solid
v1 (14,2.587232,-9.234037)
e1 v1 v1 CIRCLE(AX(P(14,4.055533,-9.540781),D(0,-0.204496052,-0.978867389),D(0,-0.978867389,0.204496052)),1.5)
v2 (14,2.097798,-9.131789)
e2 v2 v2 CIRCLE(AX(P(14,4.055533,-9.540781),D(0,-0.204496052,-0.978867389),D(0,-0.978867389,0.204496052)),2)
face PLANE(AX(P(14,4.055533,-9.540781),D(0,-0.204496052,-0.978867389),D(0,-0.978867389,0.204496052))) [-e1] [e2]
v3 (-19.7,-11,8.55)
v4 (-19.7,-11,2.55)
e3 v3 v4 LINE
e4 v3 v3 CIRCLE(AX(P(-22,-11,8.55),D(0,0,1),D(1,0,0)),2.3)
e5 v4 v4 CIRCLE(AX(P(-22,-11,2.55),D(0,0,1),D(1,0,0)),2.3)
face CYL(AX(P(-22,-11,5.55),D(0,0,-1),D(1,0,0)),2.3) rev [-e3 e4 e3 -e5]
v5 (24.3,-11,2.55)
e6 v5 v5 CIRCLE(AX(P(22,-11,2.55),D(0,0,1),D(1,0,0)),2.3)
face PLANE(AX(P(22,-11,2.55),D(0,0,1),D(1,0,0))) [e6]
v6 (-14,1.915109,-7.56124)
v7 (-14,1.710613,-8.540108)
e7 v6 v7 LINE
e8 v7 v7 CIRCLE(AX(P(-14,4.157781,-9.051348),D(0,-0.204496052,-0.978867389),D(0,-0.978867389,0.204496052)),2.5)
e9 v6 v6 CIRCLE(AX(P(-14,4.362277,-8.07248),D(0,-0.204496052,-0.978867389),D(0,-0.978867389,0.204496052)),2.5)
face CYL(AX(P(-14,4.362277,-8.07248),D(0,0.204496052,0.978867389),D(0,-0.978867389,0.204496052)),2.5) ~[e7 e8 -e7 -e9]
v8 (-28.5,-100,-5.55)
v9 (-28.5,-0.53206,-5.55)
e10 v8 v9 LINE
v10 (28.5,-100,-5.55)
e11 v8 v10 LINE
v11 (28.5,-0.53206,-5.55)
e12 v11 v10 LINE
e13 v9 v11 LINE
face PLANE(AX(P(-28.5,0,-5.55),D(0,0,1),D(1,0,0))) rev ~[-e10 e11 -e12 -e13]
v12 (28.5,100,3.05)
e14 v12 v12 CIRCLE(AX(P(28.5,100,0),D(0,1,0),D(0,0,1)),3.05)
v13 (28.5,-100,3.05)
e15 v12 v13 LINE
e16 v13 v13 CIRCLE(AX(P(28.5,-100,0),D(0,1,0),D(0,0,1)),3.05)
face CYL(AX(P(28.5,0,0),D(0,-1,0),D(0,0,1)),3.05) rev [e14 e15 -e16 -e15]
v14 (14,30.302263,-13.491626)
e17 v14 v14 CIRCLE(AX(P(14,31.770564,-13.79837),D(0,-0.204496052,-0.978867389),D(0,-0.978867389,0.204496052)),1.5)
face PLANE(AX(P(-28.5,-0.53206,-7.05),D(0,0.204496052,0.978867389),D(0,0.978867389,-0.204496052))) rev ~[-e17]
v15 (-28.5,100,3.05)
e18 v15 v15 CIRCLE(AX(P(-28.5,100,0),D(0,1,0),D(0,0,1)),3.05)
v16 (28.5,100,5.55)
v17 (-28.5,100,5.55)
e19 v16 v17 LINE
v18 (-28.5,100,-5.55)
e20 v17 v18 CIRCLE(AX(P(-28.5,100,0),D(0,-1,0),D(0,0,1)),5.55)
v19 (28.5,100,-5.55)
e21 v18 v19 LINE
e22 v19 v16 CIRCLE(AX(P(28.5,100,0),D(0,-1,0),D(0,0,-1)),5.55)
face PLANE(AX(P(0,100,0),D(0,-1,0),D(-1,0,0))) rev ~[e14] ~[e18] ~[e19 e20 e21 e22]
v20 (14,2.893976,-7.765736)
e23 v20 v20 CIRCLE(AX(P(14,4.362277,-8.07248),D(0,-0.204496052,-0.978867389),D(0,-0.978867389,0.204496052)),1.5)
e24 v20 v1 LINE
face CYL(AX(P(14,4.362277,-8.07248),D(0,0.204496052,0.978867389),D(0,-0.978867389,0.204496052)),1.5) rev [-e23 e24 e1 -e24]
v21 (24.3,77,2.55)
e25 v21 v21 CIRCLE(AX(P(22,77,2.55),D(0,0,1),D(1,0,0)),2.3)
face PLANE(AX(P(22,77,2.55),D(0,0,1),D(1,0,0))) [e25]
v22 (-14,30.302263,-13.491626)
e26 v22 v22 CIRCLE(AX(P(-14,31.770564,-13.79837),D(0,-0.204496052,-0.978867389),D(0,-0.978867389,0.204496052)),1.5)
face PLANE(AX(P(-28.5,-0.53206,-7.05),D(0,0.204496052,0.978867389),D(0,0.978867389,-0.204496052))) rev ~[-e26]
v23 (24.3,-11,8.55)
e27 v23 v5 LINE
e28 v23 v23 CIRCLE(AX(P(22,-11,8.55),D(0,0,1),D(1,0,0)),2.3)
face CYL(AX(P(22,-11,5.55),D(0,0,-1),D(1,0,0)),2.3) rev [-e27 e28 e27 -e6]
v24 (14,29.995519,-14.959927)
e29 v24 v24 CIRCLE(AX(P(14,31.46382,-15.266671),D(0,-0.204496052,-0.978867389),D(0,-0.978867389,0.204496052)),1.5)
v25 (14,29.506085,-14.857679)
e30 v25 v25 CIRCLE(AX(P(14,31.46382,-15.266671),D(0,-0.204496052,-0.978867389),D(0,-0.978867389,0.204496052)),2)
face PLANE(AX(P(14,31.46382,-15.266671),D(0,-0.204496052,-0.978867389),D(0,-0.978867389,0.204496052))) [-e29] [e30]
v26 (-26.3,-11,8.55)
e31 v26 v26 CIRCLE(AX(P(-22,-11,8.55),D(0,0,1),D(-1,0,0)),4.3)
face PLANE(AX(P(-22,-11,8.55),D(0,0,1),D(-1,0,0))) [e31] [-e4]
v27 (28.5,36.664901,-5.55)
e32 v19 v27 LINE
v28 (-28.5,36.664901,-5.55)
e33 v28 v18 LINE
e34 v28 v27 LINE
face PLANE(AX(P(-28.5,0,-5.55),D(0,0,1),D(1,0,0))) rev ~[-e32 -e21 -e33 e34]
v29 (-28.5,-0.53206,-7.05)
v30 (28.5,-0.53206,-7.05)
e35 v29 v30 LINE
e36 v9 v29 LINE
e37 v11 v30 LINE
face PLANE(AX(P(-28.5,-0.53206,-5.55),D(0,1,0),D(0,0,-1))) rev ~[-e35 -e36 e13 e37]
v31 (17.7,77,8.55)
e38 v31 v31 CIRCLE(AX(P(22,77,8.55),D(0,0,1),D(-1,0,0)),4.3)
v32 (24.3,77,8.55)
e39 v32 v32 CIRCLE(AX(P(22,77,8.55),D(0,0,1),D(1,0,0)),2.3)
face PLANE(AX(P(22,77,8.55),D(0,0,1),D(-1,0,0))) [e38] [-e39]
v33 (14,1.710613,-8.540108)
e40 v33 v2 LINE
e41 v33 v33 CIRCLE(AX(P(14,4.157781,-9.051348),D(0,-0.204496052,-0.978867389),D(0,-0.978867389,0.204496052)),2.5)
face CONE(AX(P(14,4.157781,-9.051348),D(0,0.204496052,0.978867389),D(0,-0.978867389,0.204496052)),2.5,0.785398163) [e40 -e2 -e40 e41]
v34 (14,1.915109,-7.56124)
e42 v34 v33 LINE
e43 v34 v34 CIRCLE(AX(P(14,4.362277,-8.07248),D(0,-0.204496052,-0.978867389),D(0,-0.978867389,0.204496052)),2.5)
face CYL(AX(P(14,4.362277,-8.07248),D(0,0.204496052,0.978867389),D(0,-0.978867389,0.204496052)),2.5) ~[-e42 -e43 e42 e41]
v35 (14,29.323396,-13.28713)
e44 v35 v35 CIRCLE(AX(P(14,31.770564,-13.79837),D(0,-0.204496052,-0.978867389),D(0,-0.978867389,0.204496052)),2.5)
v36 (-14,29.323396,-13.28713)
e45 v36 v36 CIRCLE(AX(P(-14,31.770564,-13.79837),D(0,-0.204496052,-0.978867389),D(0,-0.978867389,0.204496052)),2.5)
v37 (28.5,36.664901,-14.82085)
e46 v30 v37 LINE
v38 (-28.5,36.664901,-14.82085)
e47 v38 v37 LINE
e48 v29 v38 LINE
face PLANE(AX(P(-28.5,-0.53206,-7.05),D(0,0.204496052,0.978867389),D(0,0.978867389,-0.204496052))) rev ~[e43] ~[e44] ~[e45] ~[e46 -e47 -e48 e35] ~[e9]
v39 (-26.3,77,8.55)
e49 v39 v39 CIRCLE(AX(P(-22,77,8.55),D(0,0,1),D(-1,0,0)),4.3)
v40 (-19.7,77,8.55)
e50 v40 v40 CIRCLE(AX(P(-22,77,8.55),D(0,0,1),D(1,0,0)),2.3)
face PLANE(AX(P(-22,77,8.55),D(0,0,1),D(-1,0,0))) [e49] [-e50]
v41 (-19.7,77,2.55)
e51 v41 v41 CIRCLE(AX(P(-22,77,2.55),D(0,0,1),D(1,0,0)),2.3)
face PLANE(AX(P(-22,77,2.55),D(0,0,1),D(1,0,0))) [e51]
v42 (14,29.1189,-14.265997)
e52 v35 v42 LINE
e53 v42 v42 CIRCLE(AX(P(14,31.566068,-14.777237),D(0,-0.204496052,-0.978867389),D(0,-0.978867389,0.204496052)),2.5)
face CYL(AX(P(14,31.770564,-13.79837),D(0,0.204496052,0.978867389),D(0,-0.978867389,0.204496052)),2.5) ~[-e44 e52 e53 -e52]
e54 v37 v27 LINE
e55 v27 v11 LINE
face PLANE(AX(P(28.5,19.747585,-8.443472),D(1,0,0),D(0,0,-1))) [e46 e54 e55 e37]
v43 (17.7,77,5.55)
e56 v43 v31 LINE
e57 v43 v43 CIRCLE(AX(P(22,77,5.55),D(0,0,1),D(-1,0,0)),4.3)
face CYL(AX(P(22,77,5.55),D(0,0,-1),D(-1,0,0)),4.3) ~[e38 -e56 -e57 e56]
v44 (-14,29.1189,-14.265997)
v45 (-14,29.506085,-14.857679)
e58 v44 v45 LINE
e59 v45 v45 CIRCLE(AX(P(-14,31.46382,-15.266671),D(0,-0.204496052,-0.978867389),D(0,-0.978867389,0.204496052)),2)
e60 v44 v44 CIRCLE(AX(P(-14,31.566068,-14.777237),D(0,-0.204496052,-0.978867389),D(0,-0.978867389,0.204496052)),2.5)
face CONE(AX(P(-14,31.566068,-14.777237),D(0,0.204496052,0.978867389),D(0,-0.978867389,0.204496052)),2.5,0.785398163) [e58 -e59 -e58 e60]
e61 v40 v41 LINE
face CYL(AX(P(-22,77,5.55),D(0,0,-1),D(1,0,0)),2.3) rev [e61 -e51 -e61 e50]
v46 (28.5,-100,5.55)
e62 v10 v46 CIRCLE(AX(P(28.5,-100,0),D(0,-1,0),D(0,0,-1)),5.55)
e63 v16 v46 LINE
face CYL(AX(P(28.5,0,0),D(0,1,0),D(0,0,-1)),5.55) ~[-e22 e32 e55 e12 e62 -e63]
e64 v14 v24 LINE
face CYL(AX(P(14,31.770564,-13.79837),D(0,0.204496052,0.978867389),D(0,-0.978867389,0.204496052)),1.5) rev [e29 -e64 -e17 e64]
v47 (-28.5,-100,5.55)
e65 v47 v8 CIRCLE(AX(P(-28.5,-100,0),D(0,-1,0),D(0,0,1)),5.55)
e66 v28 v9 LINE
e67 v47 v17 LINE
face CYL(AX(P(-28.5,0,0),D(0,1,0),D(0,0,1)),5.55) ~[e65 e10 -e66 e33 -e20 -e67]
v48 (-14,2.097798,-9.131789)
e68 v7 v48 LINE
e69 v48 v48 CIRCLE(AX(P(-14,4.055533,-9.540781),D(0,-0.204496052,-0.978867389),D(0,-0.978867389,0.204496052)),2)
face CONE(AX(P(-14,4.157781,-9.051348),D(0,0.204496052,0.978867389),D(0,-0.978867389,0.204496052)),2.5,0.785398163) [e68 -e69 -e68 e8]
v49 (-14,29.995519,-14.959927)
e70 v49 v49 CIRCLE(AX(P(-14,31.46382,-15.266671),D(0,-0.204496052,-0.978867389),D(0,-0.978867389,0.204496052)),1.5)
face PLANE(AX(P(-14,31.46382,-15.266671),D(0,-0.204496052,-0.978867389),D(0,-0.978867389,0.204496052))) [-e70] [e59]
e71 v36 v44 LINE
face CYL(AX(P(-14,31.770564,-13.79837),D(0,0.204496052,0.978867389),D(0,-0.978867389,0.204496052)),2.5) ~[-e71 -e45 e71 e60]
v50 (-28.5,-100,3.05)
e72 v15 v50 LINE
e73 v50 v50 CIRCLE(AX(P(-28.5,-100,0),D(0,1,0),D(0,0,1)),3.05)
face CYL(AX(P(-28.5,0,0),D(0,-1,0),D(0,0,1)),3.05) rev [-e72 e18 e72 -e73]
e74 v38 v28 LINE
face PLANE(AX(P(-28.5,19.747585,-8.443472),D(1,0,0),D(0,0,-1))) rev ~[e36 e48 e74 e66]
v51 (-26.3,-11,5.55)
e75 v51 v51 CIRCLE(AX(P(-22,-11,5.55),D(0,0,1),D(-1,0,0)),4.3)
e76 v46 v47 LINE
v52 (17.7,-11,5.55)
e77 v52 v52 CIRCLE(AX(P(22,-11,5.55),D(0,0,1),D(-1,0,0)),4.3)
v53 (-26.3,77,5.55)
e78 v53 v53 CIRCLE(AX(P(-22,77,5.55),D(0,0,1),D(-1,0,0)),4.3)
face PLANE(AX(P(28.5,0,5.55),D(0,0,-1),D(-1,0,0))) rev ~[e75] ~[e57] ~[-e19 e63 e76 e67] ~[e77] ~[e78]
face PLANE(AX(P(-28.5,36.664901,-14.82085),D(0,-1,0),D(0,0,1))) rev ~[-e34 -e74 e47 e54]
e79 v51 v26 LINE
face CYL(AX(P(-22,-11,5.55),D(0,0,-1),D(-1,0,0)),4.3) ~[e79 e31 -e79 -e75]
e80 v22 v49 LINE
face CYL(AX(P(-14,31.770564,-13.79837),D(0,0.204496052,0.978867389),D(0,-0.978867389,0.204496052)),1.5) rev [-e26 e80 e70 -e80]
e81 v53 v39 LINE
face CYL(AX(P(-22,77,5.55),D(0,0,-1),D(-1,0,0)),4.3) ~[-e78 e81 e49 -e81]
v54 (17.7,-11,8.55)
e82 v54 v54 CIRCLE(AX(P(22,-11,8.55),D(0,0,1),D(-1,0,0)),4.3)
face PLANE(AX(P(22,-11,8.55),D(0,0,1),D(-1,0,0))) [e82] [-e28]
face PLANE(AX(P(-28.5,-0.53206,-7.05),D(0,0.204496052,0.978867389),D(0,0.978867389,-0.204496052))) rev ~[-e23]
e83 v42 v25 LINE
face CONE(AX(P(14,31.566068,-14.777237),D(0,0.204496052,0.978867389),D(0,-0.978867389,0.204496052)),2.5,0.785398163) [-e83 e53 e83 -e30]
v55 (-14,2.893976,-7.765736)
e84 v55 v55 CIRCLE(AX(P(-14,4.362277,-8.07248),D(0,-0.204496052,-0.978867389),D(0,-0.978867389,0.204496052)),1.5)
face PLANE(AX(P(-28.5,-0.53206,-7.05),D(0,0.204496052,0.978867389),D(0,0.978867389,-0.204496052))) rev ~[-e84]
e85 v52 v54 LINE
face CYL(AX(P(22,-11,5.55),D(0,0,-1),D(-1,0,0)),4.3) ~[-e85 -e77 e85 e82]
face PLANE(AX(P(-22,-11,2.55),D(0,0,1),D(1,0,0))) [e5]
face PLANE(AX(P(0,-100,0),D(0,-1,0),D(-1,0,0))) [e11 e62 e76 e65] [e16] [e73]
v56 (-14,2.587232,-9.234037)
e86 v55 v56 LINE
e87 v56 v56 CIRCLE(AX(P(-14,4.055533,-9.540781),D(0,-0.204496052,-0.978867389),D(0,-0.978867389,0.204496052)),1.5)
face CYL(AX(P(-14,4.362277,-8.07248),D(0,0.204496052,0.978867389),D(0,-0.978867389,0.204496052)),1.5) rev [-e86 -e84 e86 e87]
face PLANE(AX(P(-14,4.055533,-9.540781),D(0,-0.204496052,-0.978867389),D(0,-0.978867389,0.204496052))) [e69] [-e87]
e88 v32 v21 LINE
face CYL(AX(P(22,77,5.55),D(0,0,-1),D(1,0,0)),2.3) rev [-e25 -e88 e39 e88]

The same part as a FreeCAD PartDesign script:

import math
import FreeCAD as App
import Part
import Sketcher
Q = App.Units.Quantity


def edges_at(feature, points):
    """Names of the edges that pass closest to the given points."""
    edges = feature.Shape.Edges
    near = lambda p: min(range(len(edges)), key=lambda i: edges[i].distToShape(Part.Vertex(*p))[0])
    return sorted({f"Edge{near(p) + 1}" for p in points})


def add_polygon(sketch, points):
    """Adds a closed chain of lines whose ends are joined by coincident constraints."""
    first, n = sketch.GeometryCount, len(points)
    for a, b in zip(points, points[1:] + points[:1]):
        sketch.addGeometry(Part.LineSegment(App.Vector(*a, 0), App.Vector(*b, 0)), False)
    for i in range(n):
        sketch.addConstraint(Sketcher.Constraint("Coincident", first + i, 2, first + (i + 1) % n, 1))

doc = App.newDocument("Part")
body = doc.addObject("PartDesign::Body", "Body")

# Sketch on XZ plane
sketch1 = body.newObject("Sketcher::SketchObject", "Sketch")
sketch1.AttachmentSupport = (doc.getObject("XZ_Plane"), [""])
sketch1.MapMode = "FlatFace"
sketch1.addGeometry([
    Part.LineSegment(App.Vector(28.5, -5.5, 0), App.Vector(-28.5, -5.5, 0)),  # 0
    Part.ArcOfCircle(Part.Circle(App.Vector(-28.5, 0, 0), App.Vector(0, 0, 1), 5.5), math.radians(90), math.radians(270)),  # 1
    Part.LineSegment(App.Vector(-28.5, 5.5, 0), App.Vector(28.5, 5.5, 0)),  # 2
    Part.ArcOfCircle(Part.Circle(App.Vector(28.5, 0, 0), App.Vector(0, 0, 1), 5.5), math.radians(-90), math.radians(90)),  # 3
    Part.Circle(App.Vector(28.5, 0, 0), App.Vector(0, 0, 1), 3),  # 4
    Part.Circle(App.Vector(-28.5, 0, 0), App.Vector(0, 0, 1), 3),  # 5
], False)
sketch1.addConstraint([
    Sketcher.Constraint("Tangent", 0, 2, 1, 2),
    Sketcher.Constraint("Tangent", 1, 1, 2, 1),
    Sketcher.Constraint("Tangent", 2, 2, 3, 2),
    Sketcher.Constraint("Tangent", 3, 1, 0, 1),
    Sketcher.Constraint("Horizontal", 0),
    Sketcher.Constraint("Horizontal", 2),
    Sketcher.Constraint("Coincident", 4, 3, 3, 3),
    Sketcher.Constraint("Coincident", 5, 3, 1, 3),
    Sketcher.Constraint("Equal", 4, 5),
    Sketcher.Constraint("Symmetric", 1, 3, 3, 3, -1, 1),
    Sketcher.Constraint("Diameter", 4, 6.1),
    Sketcher.Constraint("DistanceX", 0, 2, 0, 1, 57.0),
    Sketcher.Constraint("Radius", 1, 5.55),
])
pad1 = body.newObject("PartDesign::Pad", "Pad")
pad1.Profile = sketch1
pad1.Length = 200
pad1.Midplane = True

# Sketch on YZ plane
sketch2 = body.newObject("Sketcher::SketchObject", "Sketch001")
sketch2.AttachmentSupport = (doc.getObject("YZ_Plane"), [""])
sketch2.MapMode = "FlatFace"
add_polygon(sketch2, [(36.7, -5.5), (-0.5, -5.5), (-0.5, -7), (36.7, -14.8)])  # lines 0-3
sketch2.addConstraint([
    Sketcher.Constraint("Horizontal", 0),
    Sketcher.Constraint("Vertical", 1),
    Sketcher.Constraint("Vertical", 3),
    Sketcher.Constraint("Distance", 2, 38.0),
    Sketcher.Constraint("DistanceY", 1, 2, 1, 1, 1.5),
    Sketcher.Constraint("Angle", 2, Q("-11.8 deg")),
    Sketcher.Constraint("DistanceY", 0, 2, -1, 1, 5.55),
    Sketcher.Constraint("DistanceX", -1, 1, 2, 2, 36.664901),
])
pad2 = body.newObject("PartDesign::Pad", "Pad001")
pad2.Profile = sketch2
pad2.Type = "TwoLengths"
pad2.Length = 28.5
pad2.Length2 = 28.5

# Sketch on an angled plane
sketch3 = body.newObject("Sketcher::SketchObject", "Sketch002")
sketch3.Placement = App.Placement(App.Vector(0, -1.43348, -6.861683), App.Rotation(App.Vector(-1, 0, 0), App.Vector(0, 0.978867389, -0.204496052), App.Vector(0, -0.204496052, -0.978867389), "ZXY"))
sketch3.addGeometry([
    Part.Circle(App.Vector(-14, 33.9, 0), App.Vector(0, 0, 1), 2.5),  # 0
    Part.Circle(App.Vector(-14, 33.9, 0), App.Vector(0, 0, 1), 1.5),  # 1
    Part.Circle(App.Vector(14, 33.9, 0), App.Vector(0, 0, 1), 2.5),  # 2
    Part.Circle(App.Vector(14, 33.9, 0), App.Vector(0, 0, 1), 1.5),  # 3
    Part.Circle(App.Vector(14, 5.9, 0), App.Vector(0, 0, 1), 2.5),  # 4
    Part.Circle(App.Vector(14, 5.9, 0), App.Vector(0, 0, 1), 1.5),  # 5
    Part.Circle(App.Vector(-14, 5.9, 0), App.Vector(0, 0, 1), 2.5),  # 6
    Part.Circle(App.Vector(-14, 5.9, 0), App.Vector(0, 0, 1), 1.5),  # 7
], False)
sketch3.addConstraint([
    Sketcher.Constraint("Coincident", 1, 3, 0, 3),
    Sketcher.Constraint("Coincident", 3, 3, 2, 3),
    Sketcher.Constraint("Coincident", 5, 3, 4, 3),
    Sketcher.Constraint("Coincident", 7, 3, 6, 3),
    Sketcher.Constraint("Equal", 0, 2),
    Sketcher.Constraint("Equal", 1, 3),
    Sketcher.Constraint("Equal", 2, 4),
    Sketcher.Constraint("Equal", 3, 5),
    Sketcher.Constraint("Equal", 4, 6),
    Sketcher.Constraint("Equal", 5, 7),
    Sketcher.Constraint("Symmetric", 0, 3, 2, 3, -2),
    Sketcher.Constraint("Symmetric", 4, 3, 6, 3, -2),
    Sketcher.Constraint("Vertical", 3, 3, 4, 3),
    Sketcher.Constraint("Diameter", 0, 5.0),
    Sketcher.Constraint("Diameter", 1, 3.0),
    Sketcher.Constraint("DistanceX", 0, 3, -1, 1, 14.0),
    Sketcher.Constraint("DistanceY", 4, 3, 2, 3, 28.0),
    Sketcher.Constraint("DistanceY", -1, 1, 0, 3, 33.920881),
])
pad3 = body.newObject("PartDesign::Pad", "Pad002")
pad3.Profile = sketch3
pad3.Length = 1.5
doc.recompute()

chamfer = body.newObject("PartDesign::Chamfer", "Chamfer")
chamfer.Base = (pad3, edges_at(pad3, [
    (14, 33.911, -15.778),
    (-14, 33.911, -15.778),
    (-14, 6.503, -10.052),
    (14, 6.503, -10.052),
]))
chamfer.Size = 0.5

# Sketch on XY plane
sketch4 = body.newObject("Sketcher::SketchObject", "Sketch003")
sketch4.AttachmentSupport = (doc.getObject("XY_Plane"), [""])
sketch4.MapMode = "FlatFace"
sketch4.AttachmentOffset = App.Placement(App.Vector(0, 0, 5.55), App.Rotation())
sketch4.addGeometry([
    Part.Circle(App.Vector(-22, 77, 0), App.Vector(0, 0, 1), 4.3),  # 0
    Part.Circle(App.Vector(-22, 77, 0), App.Vector(0, 0, 1), 2.3),  # 1
    Part.Circle(App.Vector(22, 77, 0), App.Vector(0, 0, 1), 4.3),  # 2
    Part.Circle(App.Vector(22, 77, 0), App.Vector(0, 0, 1), 2.3),  # 3
    Part.Circle(App.Vector(-22, -11, 0), App.Vector(0, 0, 1), 4.3),  # 4
    Part.Circle(App.Vector(-22, -11, 0), App.Vector(0, 0, 1), 2.3),  # 5
    Part.Circle(App.Vector(22, -11, 0), App.Vector(0, 0, 1), 4.3),  # 6
    Part.Circle(App.Vector(22, -11, 0), App.Vector(0, 0, 1), 2.3),  # 7
], False)
sketch4.addConstraint([
    Sketcher.Constraint("Coincident", 1, 3, 0, 3),
    Sketcher.Constraint("Coincident", 3, 3, 2, 3),
    Sketcher.Constraint("Coincident", 5, 3, 4, 3),
    Sketcher.Constraint("Coincident", 7, 3, 6, 3),
    Sketcher.Constraint("Equal", 0, 2),
    Sketcher.Constraint("Equal", 1, 3),
    Sketcher.Constraint("Equal", 2, 4),
    Sketcher.Constraint("Equal", 3, 5),
    Sketcher.Constraint("Equal", 4, 6),
    Sketcher.Constraint("Equal", 5, 7),
    Sketcher.Constraint("Symmetric", 0, 3, 2, 3, -2),
    Sketcher.Constraint("Symmetric", 4, 3, 6, 3, -2),
    Sketcher.Constraint("Vertical", 1, 3, 4, 3),
    Sketcher.Constraint("Diameter", 0, 8.6),
    Sketcher.Constraint("Diameter", 1, 4.6),
    Sketcher.Constraint("DistanceX", 0, 3, -1, 1, 22.0),
    Sketcher.Constraint("DistanceY", -1, 1, 0, 3, 77.0),
    Sketcher.Constraint("DistanceY", 4, 3, -1, 1, 11.0),
])
pad4 = body.newObject("PartDesign::Pad", "Pad003")
pad4.Profile = sketch4
pad4.Length = 3

# Sketch on XY plane
sketch5 = body.newObject("Sketcher::SketchObject", "Sketch004")
sketch5.AttachmentSupport = (doc.getObject("XY_Plane"), [""])
sketch5.MapMode = "FlatFace"
sketch5.AttachmentOffset = App.Placement(App.Vector(0, 0, 2.55), App.Rotation())
sketch5.addGeometry([
    Part.Circle(App.Vector(22, 77, 0), App.Vector(0, 0, 1), 2.3),
    Part.Circle(App.Vector(-22, 77, 0), App.Vector(0, 0, 1), 2.3),
    Part.Circle(App.Vector(22, -11, 0), App.Vector(0, 0, 1), 2.3),
    Part.Circle(App.Vector(-22, -11, 0), App.Vector(0, 0, 1), 2.3),
], False)
sketch5.addConstraint([
    Sketcher.Constraint("Equal", 0, 1),
    Sketcher.Constraint("Equal", 1, 2),
    Sketcher.Constraint("Equal", 2, 3),
    Sketcher.Constraint("Symmetric", 0, 3, 1, 3, -2),
    Sketcher.Constraint("Symmetric", 2, 3, 3, 3, -2),
    Sketcher.Constraint("Vertical", 0, 3, 2, 3),
    Sketcher.Constraint("Diameter", 0, 4.6),
    Sketcher.Constraint("DistanceX", -1, 1, 0, 3, 22.0),
    Sketcher.Constraint("DistanceY", -1, 1, 0, 3, 77.0),
    Sketcher.Constraint("DistanceY", 2, 3, -1, 1, 11.0),
])
pocket1 = body.newObject("PartDesign::Pocket", "Pocket")
pocket1.Profile = sketch5
pocket1.Length = 3
pocket1.Reversed = True

doc.recompute()
